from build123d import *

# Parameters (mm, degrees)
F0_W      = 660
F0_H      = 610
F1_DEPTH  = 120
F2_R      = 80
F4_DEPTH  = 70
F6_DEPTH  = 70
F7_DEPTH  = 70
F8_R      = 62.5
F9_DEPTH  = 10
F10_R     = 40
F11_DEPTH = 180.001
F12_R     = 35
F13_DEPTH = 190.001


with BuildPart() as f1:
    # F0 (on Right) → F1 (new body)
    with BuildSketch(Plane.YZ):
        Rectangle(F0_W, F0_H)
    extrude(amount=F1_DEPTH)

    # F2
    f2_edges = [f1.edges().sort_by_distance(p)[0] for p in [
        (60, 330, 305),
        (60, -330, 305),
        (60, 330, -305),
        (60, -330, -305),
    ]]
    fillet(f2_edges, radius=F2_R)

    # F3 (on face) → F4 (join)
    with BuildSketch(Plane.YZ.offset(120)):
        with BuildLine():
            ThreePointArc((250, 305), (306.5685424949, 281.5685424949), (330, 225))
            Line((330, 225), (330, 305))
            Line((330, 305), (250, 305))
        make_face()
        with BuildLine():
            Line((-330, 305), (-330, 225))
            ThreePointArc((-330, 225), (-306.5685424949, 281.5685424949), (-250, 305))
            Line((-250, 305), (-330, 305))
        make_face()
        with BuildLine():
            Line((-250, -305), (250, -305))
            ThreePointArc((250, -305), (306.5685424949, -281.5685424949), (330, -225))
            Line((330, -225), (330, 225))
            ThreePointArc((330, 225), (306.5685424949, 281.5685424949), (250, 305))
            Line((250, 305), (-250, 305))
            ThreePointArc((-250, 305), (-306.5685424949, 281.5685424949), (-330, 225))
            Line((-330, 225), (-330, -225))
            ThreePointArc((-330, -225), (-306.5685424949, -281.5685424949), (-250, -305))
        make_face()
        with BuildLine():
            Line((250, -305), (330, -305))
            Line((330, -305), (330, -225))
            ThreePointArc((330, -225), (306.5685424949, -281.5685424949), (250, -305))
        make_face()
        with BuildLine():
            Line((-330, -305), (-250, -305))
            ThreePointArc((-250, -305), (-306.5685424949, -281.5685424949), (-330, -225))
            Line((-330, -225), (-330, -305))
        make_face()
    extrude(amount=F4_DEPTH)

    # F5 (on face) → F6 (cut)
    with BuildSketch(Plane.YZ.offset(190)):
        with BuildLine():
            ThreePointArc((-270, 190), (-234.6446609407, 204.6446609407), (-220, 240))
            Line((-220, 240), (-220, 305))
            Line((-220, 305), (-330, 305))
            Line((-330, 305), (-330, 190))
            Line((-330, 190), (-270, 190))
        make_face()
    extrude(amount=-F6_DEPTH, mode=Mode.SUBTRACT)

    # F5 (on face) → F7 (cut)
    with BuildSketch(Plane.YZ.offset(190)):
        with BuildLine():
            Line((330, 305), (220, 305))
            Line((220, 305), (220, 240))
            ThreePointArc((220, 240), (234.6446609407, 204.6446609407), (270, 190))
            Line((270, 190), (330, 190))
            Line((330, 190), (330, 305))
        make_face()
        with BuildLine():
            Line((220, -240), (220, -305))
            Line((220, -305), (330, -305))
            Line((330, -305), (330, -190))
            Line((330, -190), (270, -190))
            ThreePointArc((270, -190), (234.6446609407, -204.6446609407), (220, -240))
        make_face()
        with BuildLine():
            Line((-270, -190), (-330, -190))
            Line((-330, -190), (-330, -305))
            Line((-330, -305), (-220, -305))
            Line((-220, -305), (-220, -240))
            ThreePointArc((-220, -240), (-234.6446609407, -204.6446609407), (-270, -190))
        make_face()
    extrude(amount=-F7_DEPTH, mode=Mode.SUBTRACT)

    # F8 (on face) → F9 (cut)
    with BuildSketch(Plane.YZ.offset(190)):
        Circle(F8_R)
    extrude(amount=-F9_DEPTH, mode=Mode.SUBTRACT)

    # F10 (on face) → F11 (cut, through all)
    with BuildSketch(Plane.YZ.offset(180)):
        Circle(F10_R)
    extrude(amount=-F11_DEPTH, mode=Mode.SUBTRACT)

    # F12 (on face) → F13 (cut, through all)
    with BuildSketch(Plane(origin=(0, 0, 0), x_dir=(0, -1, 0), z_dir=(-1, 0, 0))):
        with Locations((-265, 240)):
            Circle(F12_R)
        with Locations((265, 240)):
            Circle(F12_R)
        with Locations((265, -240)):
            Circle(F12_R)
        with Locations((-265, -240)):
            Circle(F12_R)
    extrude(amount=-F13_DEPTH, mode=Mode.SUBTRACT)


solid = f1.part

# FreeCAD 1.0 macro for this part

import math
import FreeCAD as App
import Part
import Sketcher

V = App.Vector


def edges_at(feature, points):
    """Names of the edges that pass closest to the given points."""
    edges = feature.Shape.Edges
    near = lambda p: min(range(len(edges)), key=lambda i: edges[i].distToShape(Part.Vertex(*p))[0])
    return sorted({f"Edge{near(p) + 1}" for p in points})


def add_polygon(sketch, points):
    """Adds a closed chain of lines whose ends are joined by coincident constraints."""
    first, n = sketch.GeometryCount, len(points)
    for a, b in zip(points, points[1:] + points[:1]):
        sketch.addGeometry(Part.LineSegment(App.Vector(*a, 0), App.Vector(*b, 0)), False)
    for i in range(n):
        sketch.addConstraint(Sketcher.Constraint("Coincident", first + i, 2, first + (i + 1) % n, 1))

doc = App.newDocument("Part")
body = doc.addObject("PartDesign::Body", "Body")

# Sketch on YZ plane
sketch1 = body.newObject("Sketcher::SketchObject", "Sketch")
sketch1.AttachmentSupport = (doc.getObject("YZ_Plane"), [""])
sketch1.MapMode = "FlatFace"
add_polygon(sketch1, [(-330, 305), (-330, -305), (330, -305), (330, 305)])  # lines 0-3
sketch1.addConstraint([
    Sketcher.Constraint("Vertical", 0),
    Sketcher.Constraint("Horizontal", 1),
    Sketcher.Constraint("Vertical", 2),
    Sketcher.Constraint("Horizontal", 3),
    Sketcher.Constraint("Symmetric", 0, 2, 2, 2, -1, 1),
    Sketcher.Constraint("DistanceX", 1, 1, 1, 2, 660.0),
    Sketcher.Constraint("DistanceY", 0, 2, 0, 1, 610.0),
])
pad1 = body.newObject("PartDesign::Pad", "Pad")
pad1.Profile = sketch1
pad1.Length = 120
doc.recompute()

fillet = body.newObject("PartDesign::Fillet", "Fillet")
fillet.Base = (pad1, edges_at(pad1, [
    (60, 330, 305),
    (60, -330, 305),
    (60, 330, -305),
    (60, -330, -305),
]))
fillet.Radius = 80

# Sketch on YZ plane
sketch2 = body.newObject("Sketcher::SketchObject", "Sketch001")
sketch2.AttachmentSupport = (doc.getObject("YZ_Plane"), [""])
sketch2.MapMode = "FlatFace"
sketch2.AttachmentOffset = App.Placement(V(0, 0, 120), App.Rotation())
add_polygon(sketch2, [(330, 305), (-330, 305), (-330, -305), (330, -305)])  # lines 0-3
sketch2.addConstraint([
    Sketcher.Constraint("Horizontal", 0),
    Sketcher.Constraint("Vertical", 1),
    Sketcher.Constraint("Horizontal", 2),
    Sketcher.Constraint("Vertical", 3),
    Sketcher.Constraint("Symmetric", 0, 2, 2, 2, -1, 1),
    Sketcher.Constraint("DistanceX", 0, 2, 0, 1, 660.0),
    Sketcher.Constraint("DistanceY", 1, 2, 1, 1, 610.0),
])
pad2 = body.newObject("PartDesign::Pad", "Pad001")
pad2.Profile = sketch2
pad2.Length = 70

# Sketch on YZ plane
sketch3 = body.newObject("Sketcher::SketchObject", "Sketch002")
sketch3.AttachmentSupport = (doc.getObject("YZ_Plane"), [""])
sketch3.MapMode = "FlatFace"
sketch3.AttachmentOffset = App.Placement(V(0, 0, 190), App.Rotation())
sketch3.addGeometry([
    Part.ArcOfCircle(Part.Circle(V(-270, 240, 0), V(0, 0, 1), 50), math.radians(-90), math.radians(0)),  # 0
    Part.LineSegment(V(-220, 240, 0), V(-220, 305, 0)),  # 1
    Part.LineSegment(V(-220, 305, 0), V(-330, 305, 0)),  # 2
    Part.LineSegment(V(-330, 305, 0), V(-330, 190, 0)),  # 3
    Part.LineSegment(V(-330, 190, 0), V(-270, 190, 0)),  # 4
], False)
sketch3.addConstraint([
    Sketcher.Constraint("Tangent", 0, 2, 1, 1),
    Sketcher.Constraint("Coincident", 1, 2, 2, 1),
    Sketcher.Constraint("Coincident", 2, 2, 3, 1),
    Sketcher.Constraint("Coincident", 3, 2, 4, 1),
    Sketcher.Constraint("Tangent", 4, 2, 0, 1),
    Sketcher.Constraint("Vertical", 1),
    Sketcher.Constraint("Horizontal", 2),
    Sketcher.Constraint("Vertical", 3),
    Sketcher.Constraint("Horizontal", 4),
    Sketcher.Constraint("Radius", 0, 50.0),
    Sketcher.Constraint("DistanceX", 2, 2, 2, 1, 110.0),
    Sketcher.Constraint("DistanceY", 1, 1, 1, 2, 65.0),
    Sketcher.Constraint("DistanceX", 0, 3, -1, 1, 270.0),
    Sketcher.Constraint("DistanceY", -1, 1, 0, 3, 240.0),
])
pocket1 = body.newObject("PartDesign::Pocket", "Pocket")
pocket1.Profile = sketch3
pocket1.Length = 70

# Sketch on YZ plane
sketch4 = body.newObject("Sketcher::SketchObject", "Sketch003")
sketch4.AttachmentSupport = (doc.getObject("YZ_Plane"), [""])
sketch4.MapMode = "FlatFace"
sketch4.AttachmentOffset = App.Placement(V(0, 0, 190), App.Rotation())
sketch4.addGeometry([
    Part.LineSegment(V(330, 305, 0), V(220, 305, 0)),  # 0
    Part.LineSegment(V(220, 305, 0), V(220, 240, 0)),  # 1
    Part.ArcOfCircle(Part.Circle(V(270, 240, 0), V(0, 0, 1), 50), math.radians(180), math.radians(270)),  # 2
    Part.LineSegment(V(270, 190, 0), V(330, 190, 0)),  # 3
    Part.LineSegment(V(330, 190, 0), V(330, 305, 0)),  # 4
    Part.LineSegment(V(220, -240, 0), V(220, -305, 0)),  # 5
    Part.LineSegment(V(220, -305, 0), V(330, -305, 0)),  # 6
    Part.LineSegment(V(330, -305, 0), V(330, -190, 0)),  # 7
    Part.LineSegment(V(330, -190, 0), V(270, -190, 0)),  # 8
    Part.ArcOfCircle(Part.Circle(V(270, -240, 0), V(0, 0, 1), 50), math.radians(90), math.radians(180)),  # 9
    Part.LineSegment(V(-270, -190, 0), V(-330, -190, 0)),  # 10
    Part.LineSegment(V(-330, -190, 0), V(-330, -305, 0)),  # 11
    Part.LineSegment(V(-330, -305, 0), V(-220, -305, 0)),  # 12
    Part.LineSegment(V(-220, -305, 0), V(-220, -240, 0)),  # 13
    Part.ArcOfCircle(Part.Circle(V(-270, -240, 0), V(0, 0, 1), 50), math.radians(0), math.radians(90)),  # 14
], False)
sketch4.addConstraint([
    Sketcher.Constraint("Coincident", 0, 2, 1, 1),
    Sketcher.Constraint("Tangent", 1, 2, 2, 1),
    Sketcher.Constraint("Tangent", 2, 2, 3, 1),
    Sketcher.Constraint("Coincident", 3, 2, 4, 1),
    Sketcher.Constraint("Coincident", 4, 2, 0, 1),
    Sketcher.Constraint("Coincident", 5, 2, 6, 1),
    Sketcher.Constraint("Coincident", 6, 2, 7, 1),
    Sketcher.Constraint("Coincident", 7, 2, 8, 1),
    Sketcher.Constraint("Tangent", 8, 2, 9, 1),
    Sketcher.Constraint("Tangent", 9, 2, 5, 1),
    Sketcher.Constraint("Coincident", 10, 2, 11, 1),
    Sketcher.Constraint("Coincident", 11, 2, 12, 1),
    Sketcher.Constraint("Coincident", 12, 2, 13, 1),
    Sketcher.Constraint("Tangent", 13, 2, 14, 1),
    Sketcher.Constraint("Tangent", 14, 2, 10, 1),
    Sketcher.Constraint("Horizontal", 0),
    Sketcher.Constraint("Vertical", 1),
    Sketcher.Constraint("Horizontal", 3),
    Sketcher.Constraint("Vertical", 4),
    Sketcher.Constraint("Vertical", 5),
    Sketcher.Constraint("Horizontal", 6),
    Sketcher.Constraint("Vertical", 7),
    Sketcher.Constraint("Horizontal", 8),
    Sketcher.Constraint("Horizontal", 10),
    Sketcher.Constraint("Vertical", 11),
    Sketcher.Constraint("Horizontal", 12),
    Sketcher.Constraint("Vertical", 13),
    Sketcher.Constraint("Equal", 2, 9),
    Sketcher.Constraint("Equal", 9, 14),
    Sketcher.Constraint("Symmetric", 2, 3, 14, 3, -1, 1),
    Sketcher.Constraint("Symmetric", 4, 2, 11, 2, -1, 1),
    Sketcher.Constraint("Symmetric", 9, 3, 14, 3, -2),
    Sketcher.Constraint("Symmetric", 6, 2, 11, 2, -2),
    Sketcher.Constraint("Radius", 2, 50.0),
    Sketcher.Constraint("DistanceX", 0, 2, 0, 1, 110.0),
    Sketcher.Constraint("DistanceY", 1, 2, 1, 1, 65.0),
    Sketcher.Constraint("DistanceX", -1, 1, 2, 3, 270.0),
    Sketcher.Constraint("DistanceY", -1, 1, 2, 3, 240.0),
])
pocket2 = body.newObject("PartDesign::Pocket", "Pocket001")
pocket2.Profile = sketch4
pocket2.Length = 70

# Sketch on YZ plane
sketch5 = body.newObject("Sketcher::SketchObject", "Sketch004")
sketch5.AttachmentSupport = (doc.getObject("YZ_Plane"), [""])
sketch5.MapMode = "FlatFace"
sketch5.AttachmentOffset = App.Placement(V(0, 0, 190), App.Rotation())
sketch5.addGeometry(Part.Circle(V(0, 0, 0), V(0, 0, 1), 62.5), False)
sketch5.addConstraint([
    Sketcher.Constraint("Coincident", 0, 3, -1, 1),
    Sketcher.Constraint("Diameter", 0, 125.0),
])
pocket3 = body.newObject("PartDesign::Pocket", "Pocket002")
pocket3.Profile = sketch5
pocket3.Length = 10

# Sketch on YZ plane
sketch6 = body.newObject("Sketcher::SketchObject", "Sketch005")
sketch6.AttachmentSupport = (doc.getObject("YZ_Plane"), [""])
sketch6.MapMode = "FlatFace"
sketch6.AttachmentOffset = App.Placement(V(0, 0, 180), App.Rotation())
sketch6.addGeometry(Part.Circle(V(0, 0, 0), V(0, 0, 1), 40), False)
sketch6.addConstraint([
    Sketcher.Constraint("Coincident", 0, 3, -1, 1),
    Sketcher.Constraint("Diameter", 0, 80.0),
])
pocket4 = body.newObject("PartDesign::Pocket", "Pocket003")
pocket4.Profile = sketch6
pocket4.Type = "ThroughAll"

# Sketch on YZ plane
sketch7 = body.newObject("Sketcher::SketchObject", "Sketch006")
sketch7.AttachmentSupport = (doc.getObject("YZ_Plane"), [""])
sketch7.MapMode = "FlatFace"
sketch7.addGeometry([
    Part.Circle(V(265, 240, 0), V(0, 0, 1), 35),
    Part.Circle(V(-265, 240, 0), V(0, 0, 1), 35),
    Part.Circle(V(-265, -240, 0), V(0, 0, 1), 35),
    Part.Circle(V(265, -240, 0), V(0, 0, 1), 35),
], False)
sketch7.addConstraint([
    Sketcher.Constraint("Equal", 0, 1),
    Sketcher.Constraint("Equal", 1, 2),
    Sketcher.Constraint("Equal", 2, 3),
    Sketcher.Constraint("Symmetric", 0, 3, 2, 3, -1, 1),
    Sketcher.Constraint("Symmetric", 1, 3, 3, 3, -1, 1),
    Sketcher.Constraint("Symmetric", 0, 3, 1, 3, -2),
    Sketcher.Constraint("Diameter", 0, 70.0),
    Sketcher.Constraint("DistanceX", -1, 1, 0, 3, 265.0),
    Sketcher.Constraint("DistanceY", -1, 1, 0, 3, 240.0),
])
pocket5 = body.newObject("PartDesign::Pocket", "Pocket004")
pocket5.Profile = sketch7
pocket5.Type = "ThroughAll"
pocket5.Reversed = True

doc.recompute()
